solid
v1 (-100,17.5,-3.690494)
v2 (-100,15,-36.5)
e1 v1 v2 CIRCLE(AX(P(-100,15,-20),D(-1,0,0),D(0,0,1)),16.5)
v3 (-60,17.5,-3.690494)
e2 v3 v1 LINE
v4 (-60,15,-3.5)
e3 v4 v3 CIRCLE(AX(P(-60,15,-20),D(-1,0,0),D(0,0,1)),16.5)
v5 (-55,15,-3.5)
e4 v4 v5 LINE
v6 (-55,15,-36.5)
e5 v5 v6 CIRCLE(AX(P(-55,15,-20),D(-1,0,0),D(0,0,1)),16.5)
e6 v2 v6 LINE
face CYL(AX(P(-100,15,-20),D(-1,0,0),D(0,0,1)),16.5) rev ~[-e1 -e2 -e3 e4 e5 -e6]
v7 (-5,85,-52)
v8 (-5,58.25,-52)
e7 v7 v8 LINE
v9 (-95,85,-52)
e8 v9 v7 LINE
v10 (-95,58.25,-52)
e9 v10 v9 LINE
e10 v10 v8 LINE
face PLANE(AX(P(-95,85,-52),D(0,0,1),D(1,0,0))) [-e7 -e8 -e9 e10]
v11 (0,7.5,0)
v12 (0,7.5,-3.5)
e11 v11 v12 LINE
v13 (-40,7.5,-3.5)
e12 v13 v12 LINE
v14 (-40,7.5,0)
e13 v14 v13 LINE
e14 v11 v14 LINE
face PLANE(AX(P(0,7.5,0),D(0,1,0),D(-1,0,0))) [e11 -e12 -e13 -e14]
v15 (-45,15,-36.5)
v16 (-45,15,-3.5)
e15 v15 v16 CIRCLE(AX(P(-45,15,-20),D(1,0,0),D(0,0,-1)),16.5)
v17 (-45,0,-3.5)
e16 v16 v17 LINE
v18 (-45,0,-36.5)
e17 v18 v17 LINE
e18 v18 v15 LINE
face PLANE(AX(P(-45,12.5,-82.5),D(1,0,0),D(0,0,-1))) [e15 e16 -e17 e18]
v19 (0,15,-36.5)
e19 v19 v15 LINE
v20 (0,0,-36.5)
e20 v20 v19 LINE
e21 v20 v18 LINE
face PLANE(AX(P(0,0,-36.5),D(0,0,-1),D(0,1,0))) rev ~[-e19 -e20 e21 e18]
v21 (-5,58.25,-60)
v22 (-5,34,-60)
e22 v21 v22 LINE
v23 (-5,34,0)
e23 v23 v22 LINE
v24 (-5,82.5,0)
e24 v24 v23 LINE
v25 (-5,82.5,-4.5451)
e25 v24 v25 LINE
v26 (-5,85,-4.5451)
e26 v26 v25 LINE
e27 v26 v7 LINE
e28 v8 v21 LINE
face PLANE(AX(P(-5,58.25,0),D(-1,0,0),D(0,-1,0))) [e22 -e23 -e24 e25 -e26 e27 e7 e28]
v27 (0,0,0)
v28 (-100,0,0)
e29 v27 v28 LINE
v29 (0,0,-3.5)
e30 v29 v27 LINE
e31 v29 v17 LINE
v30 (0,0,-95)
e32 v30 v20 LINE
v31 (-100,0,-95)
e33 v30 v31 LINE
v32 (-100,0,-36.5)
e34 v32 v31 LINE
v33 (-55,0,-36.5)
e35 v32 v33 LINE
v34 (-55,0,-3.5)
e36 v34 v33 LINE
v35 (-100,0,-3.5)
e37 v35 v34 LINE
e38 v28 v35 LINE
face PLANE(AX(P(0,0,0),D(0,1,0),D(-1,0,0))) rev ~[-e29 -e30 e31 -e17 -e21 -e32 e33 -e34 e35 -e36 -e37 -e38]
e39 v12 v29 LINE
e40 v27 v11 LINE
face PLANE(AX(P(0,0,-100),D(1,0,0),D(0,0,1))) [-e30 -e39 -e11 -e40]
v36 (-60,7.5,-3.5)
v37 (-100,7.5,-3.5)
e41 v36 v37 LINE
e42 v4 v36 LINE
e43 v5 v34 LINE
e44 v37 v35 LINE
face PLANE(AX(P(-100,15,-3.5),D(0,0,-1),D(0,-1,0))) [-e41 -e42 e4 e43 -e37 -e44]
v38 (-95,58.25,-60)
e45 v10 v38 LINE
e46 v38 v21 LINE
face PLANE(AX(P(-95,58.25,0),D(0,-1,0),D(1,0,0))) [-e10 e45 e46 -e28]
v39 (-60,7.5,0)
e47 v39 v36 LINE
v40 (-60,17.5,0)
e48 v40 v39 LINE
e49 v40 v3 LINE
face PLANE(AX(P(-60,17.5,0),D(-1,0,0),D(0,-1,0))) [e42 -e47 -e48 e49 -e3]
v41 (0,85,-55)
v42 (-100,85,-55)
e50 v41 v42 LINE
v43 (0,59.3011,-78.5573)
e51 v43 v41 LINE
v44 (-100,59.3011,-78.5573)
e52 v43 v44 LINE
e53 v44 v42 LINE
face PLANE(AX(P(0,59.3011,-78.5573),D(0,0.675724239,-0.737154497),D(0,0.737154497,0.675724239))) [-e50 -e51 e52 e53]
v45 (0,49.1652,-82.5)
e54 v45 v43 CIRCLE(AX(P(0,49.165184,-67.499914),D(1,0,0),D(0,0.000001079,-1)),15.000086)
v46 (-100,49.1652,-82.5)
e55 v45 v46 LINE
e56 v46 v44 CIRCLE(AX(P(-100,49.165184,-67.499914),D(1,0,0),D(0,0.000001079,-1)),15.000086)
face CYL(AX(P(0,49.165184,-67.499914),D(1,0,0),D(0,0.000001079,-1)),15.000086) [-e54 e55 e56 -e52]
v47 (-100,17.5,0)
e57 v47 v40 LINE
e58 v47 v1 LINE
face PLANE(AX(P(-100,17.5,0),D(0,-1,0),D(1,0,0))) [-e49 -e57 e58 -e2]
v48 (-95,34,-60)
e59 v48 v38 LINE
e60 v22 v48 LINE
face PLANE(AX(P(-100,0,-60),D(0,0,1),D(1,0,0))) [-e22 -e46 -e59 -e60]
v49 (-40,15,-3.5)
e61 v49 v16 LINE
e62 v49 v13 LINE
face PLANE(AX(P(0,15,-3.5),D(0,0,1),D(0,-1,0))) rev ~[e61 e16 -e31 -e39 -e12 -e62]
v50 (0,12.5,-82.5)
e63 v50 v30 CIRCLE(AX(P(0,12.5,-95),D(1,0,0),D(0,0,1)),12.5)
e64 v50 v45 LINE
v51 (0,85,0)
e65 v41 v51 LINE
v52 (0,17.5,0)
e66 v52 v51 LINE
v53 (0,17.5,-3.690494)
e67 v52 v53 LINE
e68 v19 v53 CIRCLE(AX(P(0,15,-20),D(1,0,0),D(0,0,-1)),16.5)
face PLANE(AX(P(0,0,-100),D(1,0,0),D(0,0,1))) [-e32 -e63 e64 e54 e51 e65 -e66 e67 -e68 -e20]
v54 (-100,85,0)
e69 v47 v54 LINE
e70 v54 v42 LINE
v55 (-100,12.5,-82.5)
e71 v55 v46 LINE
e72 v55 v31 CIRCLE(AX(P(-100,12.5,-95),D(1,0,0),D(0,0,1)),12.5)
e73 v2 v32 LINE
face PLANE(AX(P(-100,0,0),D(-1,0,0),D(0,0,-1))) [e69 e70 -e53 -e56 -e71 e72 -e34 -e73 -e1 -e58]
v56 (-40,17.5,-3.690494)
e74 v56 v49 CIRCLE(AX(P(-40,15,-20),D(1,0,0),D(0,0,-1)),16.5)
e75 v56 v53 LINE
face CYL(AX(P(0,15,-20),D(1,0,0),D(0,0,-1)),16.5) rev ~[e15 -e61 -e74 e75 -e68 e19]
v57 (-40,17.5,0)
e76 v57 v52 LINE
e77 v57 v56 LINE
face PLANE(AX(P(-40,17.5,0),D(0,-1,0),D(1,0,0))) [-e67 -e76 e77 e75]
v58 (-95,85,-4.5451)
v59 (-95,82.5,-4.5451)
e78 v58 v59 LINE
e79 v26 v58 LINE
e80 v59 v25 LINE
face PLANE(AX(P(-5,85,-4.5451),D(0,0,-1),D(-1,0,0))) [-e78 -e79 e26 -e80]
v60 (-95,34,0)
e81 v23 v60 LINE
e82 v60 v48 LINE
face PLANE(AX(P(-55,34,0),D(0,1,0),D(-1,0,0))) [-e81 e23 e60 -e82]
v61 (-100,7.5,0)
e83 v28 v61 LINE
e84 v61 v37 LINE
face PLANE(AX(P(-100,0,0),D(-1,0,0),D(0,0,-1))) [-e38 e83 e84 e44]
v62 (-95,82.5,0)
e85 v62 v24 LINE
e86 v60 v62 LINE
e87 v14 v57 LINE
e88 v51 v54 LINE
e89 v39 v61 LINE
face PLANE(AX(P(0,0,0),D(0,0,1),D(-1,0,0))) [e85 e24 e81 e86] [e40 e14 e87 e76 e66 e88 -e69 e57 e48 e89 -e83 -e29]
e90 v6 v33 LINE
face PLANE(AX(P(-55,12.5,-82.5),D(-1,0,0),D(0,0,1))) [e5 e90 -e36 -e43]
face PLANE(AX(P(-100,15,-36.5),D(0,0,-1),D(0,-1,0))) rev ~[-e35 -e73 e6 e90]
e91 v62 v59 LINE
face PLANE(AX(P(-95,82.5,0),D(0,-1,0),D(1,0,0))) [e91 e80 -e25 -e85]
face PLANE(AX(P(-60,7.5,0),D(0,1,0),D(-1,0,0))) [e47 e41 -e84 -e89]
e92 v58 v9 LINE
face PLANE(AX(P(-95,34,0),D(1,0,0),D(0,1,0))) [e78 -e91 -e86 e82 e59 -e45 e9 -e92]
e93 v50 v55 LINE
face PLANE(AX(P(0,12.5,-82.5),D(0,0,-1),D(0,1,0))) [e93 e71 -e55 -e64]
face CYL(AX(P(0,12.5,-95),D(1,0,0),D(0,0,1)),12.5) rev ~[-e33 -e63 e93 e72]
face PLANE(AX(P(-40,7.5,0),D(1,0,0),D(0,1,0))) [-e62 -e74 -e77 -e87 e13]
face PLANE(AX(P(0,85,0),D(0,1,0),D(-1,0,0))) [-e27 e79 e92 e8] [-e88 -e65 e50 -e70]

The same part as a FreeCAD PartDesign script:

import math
import FreeCAD as App
import Part
import Sketcher
Q = App.Units.Quantity

doc = App.newDocument("Part")
body = doc.addObject("PartDesign::Body", "Body")

# Sketch on XZ plane
sketch1 = body.newObject("Sketcher::SketchObject", "Sketch")
sketch1.AttachmentSupport = (doc.getObject("XZ_Plane"), [""])
sketch1.MapMode = "FlatFace"
sketch1.addGeometry([
    Part.LineSegment(App.Vector(-100, 0, 0), App.Vector(0, 0, 0)),
    Part.LineSegment(App.Vector(0, 0, 0), App.Vector(0, -100, 0)),
    Part.LineSegment(App.Vector(0, -100, 0), App.Vector(-100, -100, 0)),
    Part.LineSegment(App.Vector(-100, -100, 0), App.Vector(-100, 0, 0)),
], False)
sketch1.addConstraint([
    Sketcher.Constraint("Coincident", 0, 2, 1, 1),
    Sketcher.Constraint("Coincident", 1, 2, 2, 1),
    Sketcher.Constraint("Coincident", 2, 2, 3, 1),
    Sketcher.Constraint("Coincident", 3, 2, 0, 1),
    Sketcher.Constraint("Horizontal", 0),
    Sketcher.Constraint("Vertical", 1),
    Sketcher.Constraint("Horizontal", 2),
    Sketcher.Constraint("Vertical", 3),
    Sketcher.Constraint("Coincident", 0, 2, -1, 1),
    Sketcher.Constraint("Equal", 2, 1),
    Sketcher.Constraint("DistanceX", 0, 1, 0, 2, 100.0),
])
pad1 = body.newObject("PartDesign::Pad", "Pad")
pad1.Profile = sketch1
pad1.Length = 85
pad1.Reversed = True

# Sketch on YZ plane
sketch2 = body.newObject("Sketcher::SketchObject", "Sketch001")
sketch2.AttachmentSupport = (doc.getObject("YZ_Plane"), [""])
sketch2.MapMode = "FlatFace"
sketch2.addGeometry([
    Part.LineSegment(App.Vector(0, -95, 0), App.Vector(0, -100, 0)),  # 0
    Part.LineSegment(App.Vector(0, -100, 0), App.Vector(85, -100, 0)),  # 1
    Part.LineSegment(App.Vector(85, -100, 0), App.Vector(85, -55, 0)),  # 2
    Part.LineSegment(App.Vector(85, -55, 0), App.Vector(59, -79, 0)),  # 3
    Part.ArcOfCircle(Part.Circle(App.Vector(49, -68, 0), App.Vector(0, 0, 1), 15), math.radians(-90), math.radians(-47)),  # 4
    Part.LineSegment(App.Vector(49, -82, 0), App.Vector(12, -82, 0)),  # 5
    Part.ArcOfCircle(Part.Circle(App.Vector(12, -95, 0), App.Vector(0, 0, 1), 12), math.radians(90), math.radians(180)),  # 6
], False)
sketch2.addConstraint([
    Sketcher.Constraint("Coincident", 0, 2, 1, 1),
    Sketcher.Constraint("Coincident", 1, 2, 2, 1),
    Sketcher.Constraint("Coincident", 2, 2, 3, 1),
    Sketcher.Constraint("Tangent", 3, 2, 4, 2),
    Sketcher.Constraint("Tangent", 4, 1, 5, 1),
    Sketcher.Constraint("Tangent", 5, 2, 6, 1),
    Sketcher.Constraint("Tangent", 6, 2, 0, 1),
    Sketcher.Constraint("Vertical", 0),
    Sketcher.Constraint("Horizontal", 1),
    Sketcher.Constraint("Vertical", 2),
    Sketcher.Constraint("Horizontal", 5),
    Sketcher.Constraint("PointOnObject", 0, 2, -2),
    Sketcher.Constraint("Radius", 4, 15.0),
    Sketcher.Constraint("Radius", 6, 12.5),
    Sketcher.Constraint("DistanceY", 4, 3, 2, 2, 12.5),
    Sketcher.Constraint("DistanceY", 1, 2, 4, 1, 17.5),
    Sketcher.Constraint("DistanceX", 1, 1, 1, 2, 85.0),
    Sketcher.Constraint("DistanceY", 6, 3, -1, 1, 95.0),
    Sketcher.Constraint("Angle", 3, Q("-137.4896 deg")),
])
pocket1 = body.newObject("PartDesign::Pocket", "Pocket")
pocket1.Profile = sketch2
pocket1.Length = 100

# Sketch on YZ plane
sketch3 = body.newObject("Sketcher::SketchObject", "Sketch002")
sketch3.AttachmentSupport = (doc.getObject("YZ_Plane"), [""])
sketch3.MapMode = "FlatFace"
sketch3.addGeometry([
    Part.LineSegment(App.Vector(0, -35, 0), App.Vector(15, -35, 0)),
    Part.ArcOfCircle(Part.Circle(App.Vector(15, -20, 0), App.Vector(0, 0, 1), 15), math.radians(-90), math.radians(90)),
    Part.LineSegment(App.Vector(15, -5, 0), App.Vector(0, -5, 0)),
    Part.LineSegment(App.Vector(0, -5, 0), App.Vector(0, -35, 0)),
], False)
sketch3.addConstraint([
    Sketcher.Constraint("Tangent", 0, 2, 1, 1),
    Sketcher.Constraint("Tangent", 1, 2, 2, 1),
    Sketcher.Constraint("Coincident", 2, 2, 3, 1),
    Sketcher.Constraint("Coincident", 3, 2, 0, 1),
    Sketcher.Constraint("Horizontal", 0),
    Sketcher.Constraint("Horizontal", 2),
    Sketcher.Constraint("Vertical", 3),
    Sketcher.Constraint("PointOnObject", 2, 2, -2),
    Sketcher.Constraint("Radius", 1, 15.0),
    Sketcher.Constraint("DistanceX", 0, 1, 0, 2, 15.0),
    Sketcher.Constraint("DistanceY", 1, 3, -1, 1, 20.0),
])
pocket2 = body.newObject("PartDesign::Pocket", "Pocket001")
pocket2.Profile = sketch3
pocket2.Length = 45

# Sketch on YZ plane
sketch4 = body.newObject("Sketcher::SketchObject", "Sketch003")
sketch4.AttachmentSupport = (doc.getObject("YZ_Plane"), [""])
sketch4.MapMode = "FlatFace"
sketch4.AttachmentOffset = App.Placement(App.Vector(0, 0, -100), App.Rotation())
sketch4.addGeometry([
    Part.ArcOfCircle(Part.Circle(App.Vector(15, -20, 0), App.Vector(0, 0, 1), 15), math.radians(-90), math.radians(90)),
    Part.LineSegment(App.Vector(15, -35, 0), App.Vector(0, -35, 0)),
    Part.LineSegment(App.Vector(0, -35, 0), App.Vector(0, -5, 0)),
    Part.LineSegment(App.Vector(0, -5, 0), App.Vector(15, -5, 0)),
], False)
sketch4.addConstraint([
    Sketcher.Constraint("Tangent", 0, 1, 1, 1),
    Sketcher.Constraint("Coincident", 1, 2, 2, 1),
    Sketcher.Constraint("Coincident", 2, 2, 3, 1),
    Sketcher.Constraint("Tangent", 3, 2, 0, 2),
    Sketcher.Constraint("Horizontal", 1),
    Sketcher.Constraint("Vertical", 2),
    Sketcher.Constraint("Horizontal", 3),
    Sketcher.Constraint("PointOnObject", 1, 2, -2),
    Sketcher.Constraint("Radius", 0, 15.0),
    Sketcher.Constraint("DistanceX", 1, 2, 1, 1, 15.0),
    Sketcher.Constraint("DistanceY", 0, 3, -1, 1, 20.0),
])
pocket3 = body.newObject("PartDesign::Pocket", "Pocket002")
pocket3.Profile = sketch4
pocket3.Length = 45
pocket3.Reversed = True

# Sketch on XY plane
sketch5 = body.newObject("Sketcher::SketchObject", "Sketch004")
sketch5.AttachmentSupport = (doc.getObject("XY_Plane"), [""])
sketch5.MapMode = "FlatFace"
sketch5.addGeometry([
    Part.LineSegment(App.Vector(-100, 18, 0), App.Vector(-100, 8, 0)),  # 0
    Part.LineSegment(App.Vector(-100, 8, 0), App.Vector(-60, 8, 0)),  # 1
    Part.LineSegment(App.Vector(-60, 8, 0), App.Vector(-60, 18, 0)),  # 2
    Part.LineSegment(App.Vector(-60, 18, 0), App.Vector(-100, 18, 0)),  # 3
    Part.LineSegment(App.Vector(0, 8, 0), App.Vector(0, 18, 0)),  # 4
    Part.LineSegment(App.Vector(0, 18, 0), App.Vector(-40, 18, 0)),  # 5
    Part.LineSegment(App.Vector(-40, 18, 0), App.Vector(-40, 8, 0)),  # 6
    Part.LineSegment(App.Vector(-40, 8, 0), App.Vector(0, 8, 0)),  # 7
], False)
sketch5.addConstraint([
    Sketcher.Constraint("Coincident", 0, 2, 1, 1),
    Sketcher.Constraint("Coincident", 1, 2, 2, 1),
    Sketcher.Constraint("Coincident", 2, 2, 3, 1),
    Sketcher.Constraint("Coincident", 3, 2, 0, 1),
    Sketcher.Constraint("Coincident", 4, 2, 5, 1),
    Sketcher.Constraint("Coincident", 5, 2, 6, 1),
    Sketcher.Constraint("Coincident", 6, 2, 7, 1),
    Sketcher.Constraint("Coincident", 7, 2, 4, 1),
    Sketcher.Constraint("Vertical", 0),
    Sketcher.Constraint("Horizontal", 1),
    Sketcher.Constraint("Vertical", 2),
    Sketcher.Constraint("Horizontal", 3),
    Sketcher.Constraint("Vertical", 4),
    Sketcher.Constraint("Horizontal", 5),
    Sketcher.Constraint("Vertical", 6),
    Sketcher.Constraint("Horizontal", 7),
    Sketcher.Constraint("PointOnObject", 4, 2, -2),
    Sketcher.Constraint("Horizontal", 3, 2, 4, 2),
    Sketcher.Constraint("Horizontal", 1, 2, 6, 2),
    Sketcher.Constraint("Equal", 3, 5),
    Sketcher.Constraint("DistanceX", 1, 1, 1, 2, 40.0),
    Sketcher.Constraint("DistanceY", 0, 2, 0, 1, 10.0),
    Sketcher.Constraint("DistanceX", 0, 2, -1, 1, 100.0),
    Sketcher.Constraint("DistanceY", -1, 1, 0, 2, 7.5),
])
pocket4 = body.newObject("PartDesign::Pocket", "Pocket003")
pocket4.Profile = sketch5
pocket4.Length = 10

# Sketch on XY plane
sketch6 = body.newObject("Sketcher::SketchObject", "Sketch005")
sketch6.AttachmentSupport = (doc.getObject("XY_Plane"), [""])
sketch6.MapMode = "FlatFace"
sketch6.addGeometry([
    Part.LineSegment(App.Vector(-95, 58, 0), App.Vector(-5, 58, 0)),
    Part.LineSegment(App.Vector(-5, 58, 0), App.Vector(-5, 82, 0)),
    Part.LineSegment(App.Vector(-5, 82, 0), App.Vector(-95, 82, 0)),
    Part.LineSegment(App.Vector(-95, 82, 0), App.Vector(-95, 58, 0)),
], False)
sketch6.addConstraint([
    Sketcher.Constraint("Coincident", 0, 2, 1, 1),
    Sketcher.Constraint("Coincident", 1, 2, 2, 1),
    Sketcher.Constraint("Coincident", 2, 2, 3, 1),
    Sketcher.Constraint("Coincident", 3, 2, 0, 1),
    Sketcher.Constraint("Horizontal", 0),
    Sketcher.Constraint("Vertical", 1),
    Sketcher.Constraint("Horizontal", 2),
    Sketcher.Constraint("Vertical", 3),
    Sketcher.Constraint("DistanceX", 0, 1, 0, 2, 90.0),
    Sketcher.Constraint("DistanceX", 0, 2, -1, 1, 5.0),
    Sketcher.Constraint("DistanceY", 1, 1, 1, 2, 24.25),
    Sketcher.Constraint("DistanceY", -1, 1, 1, 2, 82.5),
])
pocket5 = body.newObject("PartDesign::Pocket", "Pocket004")
pocket5.Profile = sketch6
pocket5.Length = 52

# Sketch on XY plane
sketch7 = body.newObject("Sketcher::SketchObject", "Sketch006")
sketch7.AttachmentSupport = (doc.getObject("XY_Plane"), [""])
sketch7.MapMode = "FlatFace"
sketch7.addGeometry([
    Part.LineSegment(App.Vector(-95, 34, 0), App.Vector(-5, 34, 0)),
    Part.LineSegment(App.Vector(-5, 34, 0), App.Vector(-5, 58, 0)),
    Part.LineSegment(App.Vector(-5, 58, 0), App.Vector(-95, 58, 0)),
    Part.LineSegment(App.Vector(-95, 58, 0), App.Vector(-95, 34, 0)),
], False)
sketch7.addConstraint([
    Sketcher.Constraint("Coincident", 0, 2, 1, 1),
    Sketcher.Constraint("Coincident", 1, 2, 2, 1),
    Sketcher.Constraint("Coincident", 2, 2, 3, 1),
    Sketcher.Constraint("Coincident", 3, 2, 0, 1),
    Sketcher.Constraint("Horizontal", 0),
    Sketcher.Constraint("Vertical", 1),
    Sketcher.Constraint("Horizontal", 2),
    Sketcher.Constraint("Vertical", 3),
    Sketcher.Constraint("DistanceX", 0, 1, 0, 2, 90.0),
    Sketcher.Constraint("DistanceX", 0, 2, -1, 1, 5.0),
    Sketcher.Constraint("DistanceY", -1, 1, 0, 2, 34.0),
    Sketcher.Constraint("DistanceY", 1, 1, 1, 2, 24.25),
])
pocket6 = body.newObject("PartDesign::Pocket", "Pocket005")
pocket6.Profile = sketch7
pocket6.Length = 60

# Sketch on XZ plane
sketch8 = body.newObject("Sketcher::SketchObject", "Sketch007")
sketch8.AttachmentSupport = (doc.getObject("XZ_Plane"), [""])
sketch8.MapMode = "FlatFace"
sketch8.AttachmentOffset = App.Placement(App.Vector(0, 0, -85), App.Rotation())
sketch8.addGeometry([
    Part.LineSegment(App.Vector(-95, -52, 0), App.Vector(-95, -5, 0)),
    Part.LineSegment(App.Vector(-95, -5, 0), App.Vector(-5, -5, 0)),
    Part.LineSegment(App.Vector(-5, -5, 0), App.Vector(-5, -52, 0)),
    Part.LineSegment(App.Vector(-5, -52, 0), App.Vector(-95, -52, 0)),
], False)
sketch8.addConstraint([
    Sketcher.Constraint("Coincident", 0, 2, 1, 1),
    Sketcher.Constraint("Coincident", 1, 2, 2, 1),
    Sketcher.Constraint("Coincident", 2, 2, 3, 1),
    Sketcher.Constraint("Coincident", 3, 2, 0, 1),
    Sketcher.Constraint("Vertical", 0),
    Sketcher.Constraint("Horizontal", 1),
    Sketcher.Constraint("Vertical", 2),
    Sketcher.Constraint("Horizontal", 3),
    Sketcher.Constraint("DistanceX", 1, 1, 1, 2, 90.0),
    Sketcher.Constraint("DistanceX", 0, 2, -1, 1, 95.0),
    Sketcher.Constraint("DistanceY", 2, 2, -1, 1, 52.0),
    Sketcher.Constraint("DistanceY", 0, 1, 0, 2, 47.455),
])
pocket7 = body.newObject("PartDesign::Pocket", "Pocket006")
pocket7.Profile = sketch8
pocket7.Length = 10.75
pocket7.Reversed = True

# Sketch on YZ plane
sketch9 = body.newObject("Sketcher::SketchObject", "Sketch008")
sketch9.AttachmentSupport = (doc.getObject("YZ_Plane"), [""])
sketch9.MapMode = "FlatFace"
sketch9.AttachmentOffset = App.Placement(App.Vector(0, 0, -100), App.Rotation())
sketch9.addGeometry([
    Part.LineSegment(App.Vector(0, -4, 0), App.Vector(15, -4, 0)),
    Part.ArcOfCircle(Part.Circle(App.Vector(15, -20, 0), App.Vector(0, 0, 1), 16), math.radians(-90), math.radians(90)),
    Part.LineSegment(App.Vector(15, -36, 0), App.Vector(0, -36, 0)),
    Part.LineSegment(App.Vector(0, -36, 0), App.Vector(0, -4, 0)),
], False)
sketch9.addConstraint([
    Sketcher.Constraint("Tangent", 0, 2, 1, 2),
    Sketcher.Constraint("Tangent", 1, 1, 2, 1),
    Sketcher.Constraint("Coincident", 2, 2, 3, 1),
    Sketcher.Constraint("Coincident", 3, 2, 0, 1),
    Sketcher.Constraint("Horizontal", 0),
    Sketcher.Constraint("Horizontal", 2),
    Sketcher.Constraint("Vertical", 3),
    Sketcher.Constraint("PointOnObject", 2, 2, -2),
    Sketcher.Constraint("Radius", 1, 16.5),
    Sketcher.Constraint("DistanceX", 0, 1, 0, 2, 15.0),
    Sketcher.Constraint("DistanceY", 1, 3, -1, 1, 20.0),
])
pocket8 = body.newObject("PartDesign::Pocket", "Pocket007")
pocket8.Profile = sketch9
pocket8.Length = 45
pocket8.Reversed = True

# Sketch on YZ plane
sketch10 = body.newObject("Sketcher::SketchObject", "Sketch009")
sketch10.AttachmentSupport = (doc.getObject("YZ_Plane"), [""])
sketch10.MapMode = "FlatFace"
sketch10.addGeometry([
    Part.LineSegment(App.Vector(0, -36, 0), App.Vector(15, -36, 0)),
    Part.ArcOfCircle(Part.Circle(App.Vector(15, -20, 0), App.Vector(0, 0, 1), 16), math.radians(-90), math.radians(90)),
    Part.LineSegment(App.Vector(15, -4, 0), App.Vector(0, -4, 0)),
    Part.LineSegment(App.Vector(0, -4, 0), App.Vector(0, -36, 0)),
], False)
sketch10.addConstraint([
    Sketcher.Constraint("Tangent", 0, 2, 1, 1),
    Sketcher.Constraint("Tangent", 1, 2, 2, 1),
    Sketcher.Constraint("Coincident", 2, 2, 3, 1),
    Sketcher.Constraint("Coincident", 3, 2, 0, 1),
    Sketcher.Constraint("Horizontal", 0),
    Sketcher.Constraint("Horizontal", 2),
    Sketcher.Constraint("Vertical", 3),
    Sketcher.Constraint("PointOnObject", 2, 2, -2),
    Sketcher.Constraint("Radius", 1, 16.5),
    Sketcher.Constraint("DistanceX", 0, 1, 0, 2, 15.0),
    Sketcher.Constraint("DistanceY", 1, 3, -1, 1, 20.0),
])
pocket9 = body.newObject("PartDesign::Pocket", "Pocket008")
pocket9.Profile = sketch10
pocket9.Length = 45

doc.recompute()
